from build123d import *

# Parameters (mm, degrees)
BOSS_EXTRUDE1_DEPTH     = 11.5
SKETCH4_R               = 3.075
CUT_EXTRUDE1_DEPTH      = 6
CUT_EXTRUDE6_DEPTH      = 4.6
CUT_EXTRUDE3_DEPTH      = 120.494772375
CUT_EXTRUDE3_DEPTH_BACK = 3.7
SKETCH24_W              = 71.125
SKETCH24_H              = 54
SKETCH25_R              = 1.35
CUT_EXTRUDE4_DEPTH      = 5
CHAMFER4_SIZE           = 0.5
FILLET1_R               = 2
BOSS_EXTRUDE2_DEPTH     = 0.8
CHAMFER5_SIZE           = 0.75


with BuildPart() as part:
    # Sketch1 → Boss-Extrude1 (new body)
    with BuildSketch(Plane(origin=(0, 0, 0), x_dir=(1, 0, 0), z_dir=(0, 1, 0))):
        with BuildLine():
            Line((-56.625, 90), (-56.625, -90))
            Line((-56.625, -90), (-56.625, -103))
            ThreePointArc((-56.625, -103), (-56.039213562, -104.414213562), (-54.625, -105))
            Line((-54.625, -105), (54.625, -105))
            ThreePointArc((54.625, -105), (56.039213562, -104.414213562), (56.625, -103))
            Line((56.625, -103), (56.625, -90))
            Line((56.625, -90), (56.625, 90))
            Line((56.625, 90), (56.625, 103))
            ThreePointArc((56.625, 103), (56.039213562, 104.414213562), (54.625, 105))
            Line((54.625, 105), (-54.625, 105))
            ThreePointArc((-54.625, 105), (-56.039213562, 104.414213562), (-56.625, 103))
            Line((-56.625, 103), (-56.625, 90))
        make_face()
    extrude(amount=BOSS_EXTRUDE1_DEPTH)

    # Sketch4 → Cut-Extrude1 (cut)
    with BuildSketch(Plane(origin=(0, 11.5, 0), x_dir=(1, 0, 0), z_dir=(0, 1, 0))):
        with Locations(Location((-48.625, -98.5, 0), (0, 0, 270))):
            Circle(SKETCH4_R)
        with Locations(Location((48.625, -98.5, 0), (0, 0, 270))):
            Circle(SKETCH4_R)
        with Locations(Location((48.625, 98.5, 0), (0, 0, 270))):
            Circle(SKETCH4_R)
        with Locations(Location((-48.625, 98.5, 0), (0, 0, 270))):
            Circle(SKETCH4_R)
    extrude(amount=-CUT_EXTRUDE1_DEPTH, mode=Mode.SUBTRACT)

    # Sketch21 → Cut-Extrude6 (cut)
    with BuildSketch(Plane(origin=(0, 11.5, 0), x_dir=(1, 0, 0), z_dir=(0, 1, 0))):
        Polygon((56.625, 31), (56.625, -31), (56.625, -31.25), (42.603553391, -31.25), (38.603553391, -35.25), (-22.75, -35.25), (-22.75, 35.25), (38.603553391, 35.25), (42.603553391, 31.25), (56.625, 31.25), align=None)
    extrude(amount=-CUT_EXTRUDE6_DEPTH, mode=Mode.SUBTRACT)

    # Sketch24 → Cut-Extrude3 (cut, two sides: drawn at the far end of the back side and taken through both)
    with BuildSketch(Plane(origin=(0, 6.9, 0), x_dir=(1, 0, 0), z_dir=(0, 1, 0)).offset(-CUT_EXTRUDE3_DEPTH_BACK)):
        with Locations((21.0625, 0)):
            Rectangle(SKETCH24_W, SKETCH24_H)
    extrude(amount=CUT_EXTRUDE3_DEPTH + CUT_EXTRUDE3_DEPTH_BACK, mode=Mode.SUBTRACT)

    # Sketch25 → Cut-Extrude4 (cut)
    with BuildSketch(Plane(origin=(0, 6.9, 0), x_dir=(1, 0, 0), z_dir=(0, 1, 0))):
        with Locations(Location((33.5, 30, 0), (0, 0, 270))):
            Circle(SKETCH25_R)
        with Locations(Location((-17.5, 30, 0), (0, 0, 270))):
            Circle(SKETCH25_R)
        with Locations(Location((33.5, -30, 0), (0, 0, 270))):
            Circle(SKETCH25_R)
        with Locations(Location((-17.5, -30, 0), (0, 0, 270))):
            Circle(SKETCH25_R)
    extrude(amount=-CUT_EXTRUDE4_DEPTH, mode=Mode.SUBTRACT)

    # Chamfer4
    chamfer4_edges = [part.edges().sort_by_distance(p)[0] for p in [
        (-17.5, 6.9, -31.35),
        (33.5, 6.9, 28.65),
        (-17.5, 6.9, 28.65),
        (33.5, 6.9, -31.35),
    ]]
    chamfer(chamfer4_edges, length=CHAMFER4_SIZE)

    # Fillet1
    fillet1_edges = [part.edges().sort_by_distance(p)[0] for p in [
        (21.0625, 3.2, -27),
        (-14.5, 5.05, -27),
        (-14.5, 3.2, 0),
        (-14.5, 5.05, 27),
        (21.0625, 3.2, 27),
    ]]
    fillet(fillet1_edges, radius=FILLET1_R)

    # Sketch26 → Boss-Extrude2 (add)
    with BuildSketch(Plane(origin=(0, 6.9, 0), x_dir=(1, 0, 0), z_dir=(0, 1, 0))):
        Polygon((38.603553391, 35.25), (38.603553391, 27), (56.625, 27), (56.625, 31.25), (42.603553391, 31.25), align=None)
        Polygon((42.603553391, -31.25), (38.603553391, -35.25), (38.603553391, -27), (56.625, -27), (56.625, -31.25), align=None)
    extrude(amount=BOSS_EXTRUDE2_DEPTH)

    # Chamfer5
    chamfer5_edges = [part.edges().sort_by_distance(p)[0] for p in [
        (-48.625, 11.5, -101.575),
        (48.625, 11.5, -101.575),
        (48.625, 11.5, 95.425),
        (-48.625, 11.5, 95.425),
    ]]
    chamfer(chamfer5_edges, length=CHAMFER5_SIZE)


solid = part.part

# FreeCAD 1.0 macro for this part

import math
import FreeCAD as App
import Part
import Sketcher


def edges_at(feature, points):
    """Names of the edges that pass closest to the given points."""
    edges = feature.Shape.Edges
    near = lambda p: min(range(len(edges)), key=lambda i: edges[i].distToShape(Part.Vertex(*p))[0])
    return sorted({f"Edge{near(p) + 1}" for p in points})

doc = App.newDocument("Part")
body = doc.addObject("PartDesign::Body", "Body")

# Sketch on XZ plane
sketch1 = body.newObject("Sketcher::SketchObject", "Sketch")
sketch1.AttachmentSupport = (doc.getObject("XZ_Plane"), [""])
sketch1.MapMode = "FlatFace"
sketch1.addGeometry(Part.ArcOfCircle(Part.Circle(App.Vector(-54.6, 103, 0), App.Vector(0, 0, 1), 2), math.radians(90), math.radians(180)), False)
sketch1.addGeometry(Part.LineSegment(App.Vector(-54.6, 105, 0), App.Vector(54.6, 105, 0)), False)
sketch1.addGeometry(Part.ArcOfCircle(Part.Circle(App.Vector(54.6, 103, 0), App.Vector(0, 0, 1), 2), math.radians(0), math.radians(90)), False)
sketch1.addGeometry(Part.LineSegment(App.Vector(56.6, 103, 0), App.Vector(56.6, -103, 0)), False)
sketch1.addGeometry(Part.ArcOfCircle(Part.Circle(App.Vector(54.6, -103, 0), App.Vector(0, 0, 1), 2), math.radians(-90), math.radians(0)), False)
sketch1.addGeometry(Part.LineSegment(App.Vector(54.6, -105, 0), App.Vector(-54.6, -105, 0)), False)
sketch1.addGeometry(Part.ArcOfCircle(Part.Circle(App.Vector(-54.6, -103, 0), App.Vector(0, 0, 1), 2), math.radians(-180), math.radians(-90)), False)
sketch1.addGeometry(Part.LineSegment(App.Vector(-56.6, -103, 0), App.Vector(-56.6, 103, 0)), False)
sketch1.addConstraint(Sketcher.Constraint("Tangent", 0, 1, 1, 1))
sketch1.addConstraint(Sketcher.Constraint("Tangent", 1, 2, 2, 2))
sketch1.addConstraint(Sketcher.Constraint("Tangent", 2, 1, 3, 1))
sketch1.addConstraint(Sketcher.Constraint("Tangent", 3, 2, 4, 2))
sketch1.addConstraint(Sketcher.Constraint("Tangent", 4, 1, 5, 1))
sketch1.addConstraint(Sketcher.Constraint("Tangent", 5, 2, 6, 2))
sketch1.addConstraint(Sketcher.Constraint("Tangent", 6, 1, 7, 1))
sketch1.addConstraint(Sketcher.Constraint("Tangent", 7, 2, 0, 2))
sketch1.addConstraint(Sketcher.Constraint("Horizontal", 1))
sketch1.addConstraint(Sketcher.Constraint("Vertical", 3))
sketch1.addConstraint(Sketcher.Constraint("Horizontal", 5))
sketch1.addConstraint(Sketcher.Constraint("Vertical", 7))
sketch1.addConstraint(Sketcher.Constraint("Equal", 0, 2))
sketch1.addConstraint(Sketcher.Constraint("Equal", 2, 4))
sketch1.addConstraint(Sketcher.Constraint("Equal", 4, 6))
sketch1.addConstraint(Sketcher.Constraint("Symmetric", 0, 3, 4, 3, -1, 1))
sketch1.addConstraint(Sketcher.Constraint("Radius", 0, 2.0))
sketch1.addConstraint(Sketcher.Constraint("DistanceY", 3, 2, 3, 1, 206.0))
sketch1.addConstraint(Sketcher.Constraint("DistanceX", 1, 1, 1, 2, 109.25))
pad1 = body.newObject("PartDesign::Pad", "Pad")
pad1.Profile = sketch1
pad1.Length = 11.5
pad1.Reversed = True

# Sketch on XZ plane
sketch2 = body.newObject("Sketcher::SketchObject", "Sketch001")
sketch2.AttachmentSupport = (doc.getObject("XZ_Plane"), [""])
sketch2.MapMode = "FlatFace"
sketch2.AttachmentOffset = App.Placement(App.Vector(0, 0, -11.5), App.Rotation())
sketch2.addGeometry(Part.Circle(App.Vector(-48.6, 98.5, 0), App.Vector(0, 0, 1), 3.1), False)
sketch2.addGeometry(Part.Circle(App.Vector(48.6, 98.5, 0), App.Vector(0, 0, 1), 3.1), False)
sketch2.addGeometry(Part.Circle(App.Vector(48.6, -98.5, 0), App.Vector(0, 0, 1), 3.1), False)
sketch2.addGeometry(Part.Circle(App.Vector(-48.6, -98.5, 0), App.Vector(0, 0, 1), 3.1), False)
sketch2.addConstraint(Sketcher.Constraint("Equal", 0, 1))
sketch2.addConstraint(Sketcher.Constraint("Equal", 1, 2))
sketch2.addConstraint(Sketcher.Constraint("Equal", 2, 3))
sketch2.addConstraint(Sketcher.Constraint("Symmetric", 0, 3, 2, 3, -1, 1))
sketch2.addConstraint(Sketcher.Constraint("Symmetric", 1, 3, 3, 3, -1, 1))
sketch2.addConstraint(Sketcher.Constraint("Symmetric", 0, 3, 1, 3, -2))
sketch2.addConstraint(Sketcher.Constraint("Diameter", 0, 6.15))
sketch2.addConstraint(Sketcher.Constraint("DistanceY", 2, 3, 1, 3, 197.0))
sketch2.addConstraint(Sketcher.Constraint("DistanceX", 0, 3, 1, 3, 97.25))
pocket1 = body.newObject("PartDesign::Pocket", "Pocket")
pocket1.Profile = sketch2
pocket1.Length = 6
pocket1.Reversed = True

# Sketch on XZ plane
sketch3 = body.newObject("Sketcher::SketchObject", "Sketch002")
sketch3.AttachmentSupport = (doc.getObject("XZ_Plane"), [""])
sketch3.MapMode = "FlatFace"
sketch3.AttachmentOffset = App.Placement(App.Vector(0, 0, -11.5), App.Rotation())
sketch3.addGeometry(Part.LineSegment(App.Vector(57, 31, 0), App.Vector(57, -31, 0)), False)
sketch3.addGeometry(Part.LineSegment(App.Vector(57, -31, 0), App.Vector(43, -31, 0)), False)
sketch3.addGeometry(Part.LineSegment(App.Vector(43, -31, 0), App.Vector(39, -35, 0)), False)
sketch3.addGeometry(Part.LineSegment(App.Vector(39, -35, 0), App.Vector(-23, -35, 0)), False)
sketch3.addGeometry(Part.LineSegment(App.Vector(-23, -35, 0), App.Vector(-23, 35, 0)), False)
sketch3.addGeometry(Part.LineSegment(App.Vector(-23, 35, 0), App.Vector(39, 35, 0)), False)
sketch3.addGeometry(Part.LineSegment(App.Vector(39, 35, 0), App.Vector(43, 31, 0)), False)
sketch3.addGeometry(Part.LineSegment(App.Vector(43, 31, 0), App.Vector(57, 31, 0)), False)
sketch3.addConstraint(Sketcher.Constraint("Coincident", 0, 2, 1, 1))
sketch3.addConstraint(Sketcher.Constraint("Coincident", 1, 2, 2, 1))
sketch3.addConstraint(Sketcher.Constraint("Coincident", 2, 2, 3, 1))
sketch3.addConstraint(Sketcher.Constraint("Coincident", 3, 2, 4, 1))
sketch3.addConstraint(Sketcher.Constraint("Coincident", 4, 2, 5, 1))
sketch3.addConstraint(Sketcher.Constraint("Coincident", 5, 2, 6, 1))
sketch3.addConstraint(Sketcher.Constraint("Coincident", 6, 2, 7, 1))
sketch3.addConstraint(Sketcher.Constraint("Coincident", 7, 2, 0, 1))
sketch3.addConstraint(Sketcher.Constraint("Vertical", 0))
sketch3.addConstraint(Sketcher.Constraint("Horizontal", 1))
sketch3.addConstraint(Sketcher.Constraint("Horizontal", 3))
sketch3.addConstraint(Sketcher.Constraint("Vertical", 4))
sketch3.addConstraint(Sketcher.Constraint("Horizontal", 5))
sketch3.addConstraint(Sketcher.Constraint("Horizontal", 7))
sketch3.addConstraint(Sketcher.Constraint("Symmetric", 2, 2, 5, 2, -1))
sketch3.addConstraint(Sketcher.Constraint("Symmetric", 1, 2, 6, 2, -1))
sketch3.addConstraint(Sketcher.Constraint("Perpendicular", 2, 6))
sketch3.addConstraint(Sketcher.Constraint("DistanceY", 0, 2, 0, 1, 62.5))
sketch3.addConstraint(Sketcher.Constraint("DistanceY", 4, 1, 4, 2, 70.5))
sketch3.addConstraint(Sketcher.Constraint("DistanceX", 3, 2, -1, 1, 22.75))
sketch3.addConstraint(Sketcher.Constraint("DistanceX", -1, 1, 0, 2, 56.625))
sketch3.addConstraint(Sketcher.Constraint("DistanceX", 1, 2, 1, 1, 14.021447))
pocket2 = body.newObject("PartDesign::Pocket", "Pocket001")
pocket2.Profile = sketch3
pocket2.Length = 4.6
pocket2.Reversed = True

# Sketch on XZ plane
sketch4 = body.newObject("Sketcher::SketchObject", "Sketch003")
sketch4.AttachmentSupport = (doc.getObject("XZ_Plane"), [""])
sketch4.MapMode = "FlatFace"
sketch4.AttachmentOffset = App.Placement(App.Vector(0, 0, -6.9), App.Rotation())
sketch4.addGeometry(Part.LineSegment(App.Vector(-14, -27, 0), App.Vector(-14, 27, 0)), False)
sketch4.addGeometry(Part.LineSegment(App.Vector(-14, 27, 0), App.Vector(57, 27, 0)), False)
sketch4.addGeometry(Part.LineSegment(App.Vector(57, 27, 0), App.Vector(57, -27, 0)), False)
sketch4.addGeometry(Part.LineSegment(App.Vector(57, -27, 0), App.Vector(-14, -27, 0)), False)
sketch4.addConstraint(Sketcher.Constraint("Coincident", 0, 2, 1, 1))
sketch4.addConstraint(Sketcher.Constraint("Coincident", 1, 2, 2, 1))
sketch4.addConstraint(Sketcher.Constraint("Coincident", 2, 2, 3, 1))
sketch4.addConstraint(Sketcher.Constraint("Coincident", 3, 2, 0, 1))
sketch4.addConstraint(Sketcher.Constraint("Vertical", 0))
sketch4.addConstraint(Sketcher.Constraint("Horizontal", 1))
sketch4.addConstraint(Sketcher.Constraint("Vertical", 2))
sketch4.addConstraint(Sketcher.Constraint("Horizontal", 3))
sketch4.addConstraint(Sketcher.Constraint("DistanceY", 0, 1, 0, 2, 54.0))
sketch4.addConstraint(Sketcher.Constraint("DistanceY", -1, 1, 0, 2, 27.0))
sketch4.addConstraint(Sketcher.Constraint("DistanceX", 0, 2, -1, 1, 14.5))
sketch4.addConstraint(Sketcher.Constraint("DistanceX", 1, 1, 1, 2, 71.125))
pocket3 = body.newObject("PartDesign::Pocket", "Pocket002")
pocket3.Profile = sketch4
pocket3.Type = "TwoLengths"
pocket3.Length = 120.494772
pocket3.Length2 = 3.7

# Sketch on XZ plane
sketch5 = body.newObject("Sketcher::SketchObject", "Sketch004")
sketch5.AttachmentSupport = (doc.getObject("XZ_Plane"), [""])
sketch5.MapMode = "FlatFace"
sketch5.AttachmentOffset = App.Placement(App.Vector(0, 0, -6.9), App.Rotation())
sketch5.addGeometry(Part.Circle(App.Vector(33.5, -30, 0), App.Vector(0, 0, 1), 1.4), False)
sketch5.addGeometry(Part.Circle(App.Vector(-17.5, -30, 0), App.Vector(0, 0, 1), 1.4), False)
sketch5.addGeometry(Part.Circle(App.Vector(33.5, 30, 0), App.Vector(0, 0, 1), 1.4), False)
sketch5.addGeometry(Part.Circle(App.Vector(-17.5, 30, 0), App.Vector(0, 0, 1), 1.4), False)
sketch5.addConstraint(Sketcher.Constraint("Equal", 0, 1))
sketch5.addConstraint(Sketcher.Constraint("Equal", 1, 2))
sketch5.addConstraint(Sketcher.Constraint("Equal", 2, 3))
sketch5.addConstraint(Sketcher.Constraint("Symmetric", 0, 3, 2, 3, -1))
sketch5.addConstraint(Sketcher.Constraint("Symmetric", 1, 3, 3, 3, -1))
sketch5.addConstraint(Sketcher.Constraint("Horizontal", 0, 3, 1, 3))
sketch5.addConstraint(Sketcher.Constraint("Diameter", 0, 2.7))
sketch5.addConstraint(Sketcher.Constraint("DistanceY", 0, 3, -1, 1, 30.0))
sketch5.addConstraint(Sketcher.Constraint("DistanceX", 1, 3, 0, 3, 51.0))
sketch5.addConstraint(Sketcher.Constraint("DistanceX", -1, 1, 0, 3, 33.5))
pocket4 = body.newObject("PartDesign::Pocket", "Pocket003")
pocket4.Profile = sketch5
pocket4.Length = 5
pocket4.Reversed = True
doc.recompute()

chamfer = body.newObject("PartDesign::Chamfer", "Chamfer")
chamfer.Base = (pocket4, edges_at(pocket4, [
    (-17.5, 6.9, -31.35),
    (33.5, 6.9, 28.65),
    (-17.5, 6.9, 28.65),
    (33.5, 6.9, -31.35),
]))
chamfer.Size = 0.5
doc.recompute()

fillet = body.newObject("PartDesign::Fillet", "Fillet")
fillet.Base = (chamfer, edges_at(chamfer, [
    (21.062, 3.2, -27),
    (-14.5, 5.05, -27),
    (-14.5, 3.2, 0),
    (-14.5, 5.05, 27),
    (21.062, 3.2, 27),
]))
fillet.Radius = 2

# Sketch on XZ plane
sketch6 = body.newObject("Sketcher::SketchObject", "Sketch005")
sketch6.AttachmentSupport = (doc.getObject("XZ_Plane"), [""])
sketch6.MapMode = "FlatFace"
sketch6.AttachmentOffset = App.Placement(App.Vector(0, 0, -6.9), App.Rotation())
sketch6.addGeometry(Part.LineSegment(App.Vector(38.6, -35.2, 0), App.Vector(38.6, -27, 0)), False)
sketch6.addGeometry(Part.LineSegment(App.Vector(38.6, -27, 0), App.Vector(56.6, -27, 0)), False)
sketch6.addGeometry(Part.LineSegment(App.Vector(56.6, -27, 0), App.Vector(56.6, -31.2, 0)), False)
sketch6.addGeometry(Part.LineSegment(App.Vector(56.6, -31.2, 0), App.Vector(42.6, -31.2, 0)), False)
sketch6.addGeometry(Part.LineSegment(App.Vector(42.6, -31.2, 0), App.Vector(38.6, -35.2, 0)), False)
sketch6.addGeometry(Part.LineSegment(App.Vector(38.6, 35.2, 0), App.Vector(42.6, 31.2, 0)), False)
sketch6.addGeometry(Part.LineSegment(App.Vector(42.6, 31.2, 0), App.Vector(56.6, 31.2, 0)), False)
sketch6.addGeometry(Part.LineSegment(App.Vector(56.6, 31.2, 0), App.Vector(56.6, 27, 0)), False)
sketch6.addGeometry(Part.LineSegment(App.Vector(56.6, 27, 0), App.Vector(38.6, 27, 0)), False)
sketch6.addGeometry(Part.LineSegment(App.Vector(38.6, 27, 0), App.Vector(38.6, 35.2, 0)), False)
sketch6.addConstraint(Sketcher.Constraint("Coincident", 0, 2, 1, 1))
sketch6.addConstraint(Sketcher.Constraint("Coincident", 1, 2, 2, 1))
sketch6.addConstraint(Sketcher.Constraint("Coincident", 2, 2, 3, 1))
sketch6.addConstraint(Sketcher.Constraint("Coincident", 3, 2, 4, 1))
sketch6.addConstraint(Sketcher.Constraint("Coincident", 4, 2, 0, 1))
sketch6.addConstraint(Sketcher.Constraint("Coincident", 5, 2, 6, 1))
sketch6.addConstraint(Sketcher.Constraint("Coincident", 6, 2, 7, 1))
sketch6.addConstraint(Sketcher.Constraint("Coincident", 7, 2, 8, 1))
sketch6.addConstraint(Sketcher.Constraint("Coincident", 8, 2, 9, 1))
sketch6.addConstraint(Sketcher.Constraint("Coincident", 9, 2, 5, 1))
sketch6.addConstraint(Sketcher.Constraint("Vertical", 0))
sketch6.addConstraint(Sketcher.Constraint("Horizontal", 1))
sketch6.addConstraint(Sketcher.Constraint("Vertical", 2))
sketch6.addConstraint(Sketcher.Constraint("Horizontal", 3))
sketch6.addConstraint(Sketcher.Constraint("Horizontal", 6))
sketch6.addConstraint(Sketcher.Constraint("Vertical", 7))
sketch6.addConstraint(Sketcher.Constraint("Horizontal", 8))
sketch6.addConstraint(Sketcher.Constraint("Vertical", 9))
sketch6.addConstraint(Sketcher.Constraint("Symmetric", 3, 2, 5, 2, -1))
sketch6.addConstraint(Sketcher.Constraint("Symmetric", 1, 2, 7, 2, -1))
sketch6.addConstraint(Sketcher.Constraint("Symmetric", 4, 2, 9, 2, -1))
sketch6.addConstraint(Sketcher.Constraint("Perpendicular", 4, 5))
sketch6.addConstraint(Sketcher.Constraint("DistanceY", 0, 2, -1, 1, 27.0))
sketch6.addConstraint(Sketcher.Constraint("DistanceX", 0, 2, 3, 2, 4.0))
sketch6.addConstraint(Sketcher.Constraint("DistanceY", 0, 1, 0, 2, 8.25))
sketch6.addConstraint(Sketcher.Constraint("DistanceX", -1, 1, 1, 2, 56.625))
sketch6.addConstraint(Sketcher.Constraint("DistanceX", 1, 1, 1, 2, 18.021447))
pad2 = body.newObject("PartDesign::Pad", "Pad001")
pad2.Profile = sketch6
pad2.Length = 0.8
pad2.Reversed = True
doc.recompute()

chamfer2 = body.newObject("PartDesign::Chamfer", "Chamfer001")
chamfer2.Base = (pad2, edges_at(pad2, [
    (-48.625, 11.5, -101.575),
    (48.625, 11.5, -101.575),
    (48.625, 11.5, 95.425),
    (-48.625, 11.5, 95.425),
]))
chamfer2.Size = 0.75

doc.recompute()
